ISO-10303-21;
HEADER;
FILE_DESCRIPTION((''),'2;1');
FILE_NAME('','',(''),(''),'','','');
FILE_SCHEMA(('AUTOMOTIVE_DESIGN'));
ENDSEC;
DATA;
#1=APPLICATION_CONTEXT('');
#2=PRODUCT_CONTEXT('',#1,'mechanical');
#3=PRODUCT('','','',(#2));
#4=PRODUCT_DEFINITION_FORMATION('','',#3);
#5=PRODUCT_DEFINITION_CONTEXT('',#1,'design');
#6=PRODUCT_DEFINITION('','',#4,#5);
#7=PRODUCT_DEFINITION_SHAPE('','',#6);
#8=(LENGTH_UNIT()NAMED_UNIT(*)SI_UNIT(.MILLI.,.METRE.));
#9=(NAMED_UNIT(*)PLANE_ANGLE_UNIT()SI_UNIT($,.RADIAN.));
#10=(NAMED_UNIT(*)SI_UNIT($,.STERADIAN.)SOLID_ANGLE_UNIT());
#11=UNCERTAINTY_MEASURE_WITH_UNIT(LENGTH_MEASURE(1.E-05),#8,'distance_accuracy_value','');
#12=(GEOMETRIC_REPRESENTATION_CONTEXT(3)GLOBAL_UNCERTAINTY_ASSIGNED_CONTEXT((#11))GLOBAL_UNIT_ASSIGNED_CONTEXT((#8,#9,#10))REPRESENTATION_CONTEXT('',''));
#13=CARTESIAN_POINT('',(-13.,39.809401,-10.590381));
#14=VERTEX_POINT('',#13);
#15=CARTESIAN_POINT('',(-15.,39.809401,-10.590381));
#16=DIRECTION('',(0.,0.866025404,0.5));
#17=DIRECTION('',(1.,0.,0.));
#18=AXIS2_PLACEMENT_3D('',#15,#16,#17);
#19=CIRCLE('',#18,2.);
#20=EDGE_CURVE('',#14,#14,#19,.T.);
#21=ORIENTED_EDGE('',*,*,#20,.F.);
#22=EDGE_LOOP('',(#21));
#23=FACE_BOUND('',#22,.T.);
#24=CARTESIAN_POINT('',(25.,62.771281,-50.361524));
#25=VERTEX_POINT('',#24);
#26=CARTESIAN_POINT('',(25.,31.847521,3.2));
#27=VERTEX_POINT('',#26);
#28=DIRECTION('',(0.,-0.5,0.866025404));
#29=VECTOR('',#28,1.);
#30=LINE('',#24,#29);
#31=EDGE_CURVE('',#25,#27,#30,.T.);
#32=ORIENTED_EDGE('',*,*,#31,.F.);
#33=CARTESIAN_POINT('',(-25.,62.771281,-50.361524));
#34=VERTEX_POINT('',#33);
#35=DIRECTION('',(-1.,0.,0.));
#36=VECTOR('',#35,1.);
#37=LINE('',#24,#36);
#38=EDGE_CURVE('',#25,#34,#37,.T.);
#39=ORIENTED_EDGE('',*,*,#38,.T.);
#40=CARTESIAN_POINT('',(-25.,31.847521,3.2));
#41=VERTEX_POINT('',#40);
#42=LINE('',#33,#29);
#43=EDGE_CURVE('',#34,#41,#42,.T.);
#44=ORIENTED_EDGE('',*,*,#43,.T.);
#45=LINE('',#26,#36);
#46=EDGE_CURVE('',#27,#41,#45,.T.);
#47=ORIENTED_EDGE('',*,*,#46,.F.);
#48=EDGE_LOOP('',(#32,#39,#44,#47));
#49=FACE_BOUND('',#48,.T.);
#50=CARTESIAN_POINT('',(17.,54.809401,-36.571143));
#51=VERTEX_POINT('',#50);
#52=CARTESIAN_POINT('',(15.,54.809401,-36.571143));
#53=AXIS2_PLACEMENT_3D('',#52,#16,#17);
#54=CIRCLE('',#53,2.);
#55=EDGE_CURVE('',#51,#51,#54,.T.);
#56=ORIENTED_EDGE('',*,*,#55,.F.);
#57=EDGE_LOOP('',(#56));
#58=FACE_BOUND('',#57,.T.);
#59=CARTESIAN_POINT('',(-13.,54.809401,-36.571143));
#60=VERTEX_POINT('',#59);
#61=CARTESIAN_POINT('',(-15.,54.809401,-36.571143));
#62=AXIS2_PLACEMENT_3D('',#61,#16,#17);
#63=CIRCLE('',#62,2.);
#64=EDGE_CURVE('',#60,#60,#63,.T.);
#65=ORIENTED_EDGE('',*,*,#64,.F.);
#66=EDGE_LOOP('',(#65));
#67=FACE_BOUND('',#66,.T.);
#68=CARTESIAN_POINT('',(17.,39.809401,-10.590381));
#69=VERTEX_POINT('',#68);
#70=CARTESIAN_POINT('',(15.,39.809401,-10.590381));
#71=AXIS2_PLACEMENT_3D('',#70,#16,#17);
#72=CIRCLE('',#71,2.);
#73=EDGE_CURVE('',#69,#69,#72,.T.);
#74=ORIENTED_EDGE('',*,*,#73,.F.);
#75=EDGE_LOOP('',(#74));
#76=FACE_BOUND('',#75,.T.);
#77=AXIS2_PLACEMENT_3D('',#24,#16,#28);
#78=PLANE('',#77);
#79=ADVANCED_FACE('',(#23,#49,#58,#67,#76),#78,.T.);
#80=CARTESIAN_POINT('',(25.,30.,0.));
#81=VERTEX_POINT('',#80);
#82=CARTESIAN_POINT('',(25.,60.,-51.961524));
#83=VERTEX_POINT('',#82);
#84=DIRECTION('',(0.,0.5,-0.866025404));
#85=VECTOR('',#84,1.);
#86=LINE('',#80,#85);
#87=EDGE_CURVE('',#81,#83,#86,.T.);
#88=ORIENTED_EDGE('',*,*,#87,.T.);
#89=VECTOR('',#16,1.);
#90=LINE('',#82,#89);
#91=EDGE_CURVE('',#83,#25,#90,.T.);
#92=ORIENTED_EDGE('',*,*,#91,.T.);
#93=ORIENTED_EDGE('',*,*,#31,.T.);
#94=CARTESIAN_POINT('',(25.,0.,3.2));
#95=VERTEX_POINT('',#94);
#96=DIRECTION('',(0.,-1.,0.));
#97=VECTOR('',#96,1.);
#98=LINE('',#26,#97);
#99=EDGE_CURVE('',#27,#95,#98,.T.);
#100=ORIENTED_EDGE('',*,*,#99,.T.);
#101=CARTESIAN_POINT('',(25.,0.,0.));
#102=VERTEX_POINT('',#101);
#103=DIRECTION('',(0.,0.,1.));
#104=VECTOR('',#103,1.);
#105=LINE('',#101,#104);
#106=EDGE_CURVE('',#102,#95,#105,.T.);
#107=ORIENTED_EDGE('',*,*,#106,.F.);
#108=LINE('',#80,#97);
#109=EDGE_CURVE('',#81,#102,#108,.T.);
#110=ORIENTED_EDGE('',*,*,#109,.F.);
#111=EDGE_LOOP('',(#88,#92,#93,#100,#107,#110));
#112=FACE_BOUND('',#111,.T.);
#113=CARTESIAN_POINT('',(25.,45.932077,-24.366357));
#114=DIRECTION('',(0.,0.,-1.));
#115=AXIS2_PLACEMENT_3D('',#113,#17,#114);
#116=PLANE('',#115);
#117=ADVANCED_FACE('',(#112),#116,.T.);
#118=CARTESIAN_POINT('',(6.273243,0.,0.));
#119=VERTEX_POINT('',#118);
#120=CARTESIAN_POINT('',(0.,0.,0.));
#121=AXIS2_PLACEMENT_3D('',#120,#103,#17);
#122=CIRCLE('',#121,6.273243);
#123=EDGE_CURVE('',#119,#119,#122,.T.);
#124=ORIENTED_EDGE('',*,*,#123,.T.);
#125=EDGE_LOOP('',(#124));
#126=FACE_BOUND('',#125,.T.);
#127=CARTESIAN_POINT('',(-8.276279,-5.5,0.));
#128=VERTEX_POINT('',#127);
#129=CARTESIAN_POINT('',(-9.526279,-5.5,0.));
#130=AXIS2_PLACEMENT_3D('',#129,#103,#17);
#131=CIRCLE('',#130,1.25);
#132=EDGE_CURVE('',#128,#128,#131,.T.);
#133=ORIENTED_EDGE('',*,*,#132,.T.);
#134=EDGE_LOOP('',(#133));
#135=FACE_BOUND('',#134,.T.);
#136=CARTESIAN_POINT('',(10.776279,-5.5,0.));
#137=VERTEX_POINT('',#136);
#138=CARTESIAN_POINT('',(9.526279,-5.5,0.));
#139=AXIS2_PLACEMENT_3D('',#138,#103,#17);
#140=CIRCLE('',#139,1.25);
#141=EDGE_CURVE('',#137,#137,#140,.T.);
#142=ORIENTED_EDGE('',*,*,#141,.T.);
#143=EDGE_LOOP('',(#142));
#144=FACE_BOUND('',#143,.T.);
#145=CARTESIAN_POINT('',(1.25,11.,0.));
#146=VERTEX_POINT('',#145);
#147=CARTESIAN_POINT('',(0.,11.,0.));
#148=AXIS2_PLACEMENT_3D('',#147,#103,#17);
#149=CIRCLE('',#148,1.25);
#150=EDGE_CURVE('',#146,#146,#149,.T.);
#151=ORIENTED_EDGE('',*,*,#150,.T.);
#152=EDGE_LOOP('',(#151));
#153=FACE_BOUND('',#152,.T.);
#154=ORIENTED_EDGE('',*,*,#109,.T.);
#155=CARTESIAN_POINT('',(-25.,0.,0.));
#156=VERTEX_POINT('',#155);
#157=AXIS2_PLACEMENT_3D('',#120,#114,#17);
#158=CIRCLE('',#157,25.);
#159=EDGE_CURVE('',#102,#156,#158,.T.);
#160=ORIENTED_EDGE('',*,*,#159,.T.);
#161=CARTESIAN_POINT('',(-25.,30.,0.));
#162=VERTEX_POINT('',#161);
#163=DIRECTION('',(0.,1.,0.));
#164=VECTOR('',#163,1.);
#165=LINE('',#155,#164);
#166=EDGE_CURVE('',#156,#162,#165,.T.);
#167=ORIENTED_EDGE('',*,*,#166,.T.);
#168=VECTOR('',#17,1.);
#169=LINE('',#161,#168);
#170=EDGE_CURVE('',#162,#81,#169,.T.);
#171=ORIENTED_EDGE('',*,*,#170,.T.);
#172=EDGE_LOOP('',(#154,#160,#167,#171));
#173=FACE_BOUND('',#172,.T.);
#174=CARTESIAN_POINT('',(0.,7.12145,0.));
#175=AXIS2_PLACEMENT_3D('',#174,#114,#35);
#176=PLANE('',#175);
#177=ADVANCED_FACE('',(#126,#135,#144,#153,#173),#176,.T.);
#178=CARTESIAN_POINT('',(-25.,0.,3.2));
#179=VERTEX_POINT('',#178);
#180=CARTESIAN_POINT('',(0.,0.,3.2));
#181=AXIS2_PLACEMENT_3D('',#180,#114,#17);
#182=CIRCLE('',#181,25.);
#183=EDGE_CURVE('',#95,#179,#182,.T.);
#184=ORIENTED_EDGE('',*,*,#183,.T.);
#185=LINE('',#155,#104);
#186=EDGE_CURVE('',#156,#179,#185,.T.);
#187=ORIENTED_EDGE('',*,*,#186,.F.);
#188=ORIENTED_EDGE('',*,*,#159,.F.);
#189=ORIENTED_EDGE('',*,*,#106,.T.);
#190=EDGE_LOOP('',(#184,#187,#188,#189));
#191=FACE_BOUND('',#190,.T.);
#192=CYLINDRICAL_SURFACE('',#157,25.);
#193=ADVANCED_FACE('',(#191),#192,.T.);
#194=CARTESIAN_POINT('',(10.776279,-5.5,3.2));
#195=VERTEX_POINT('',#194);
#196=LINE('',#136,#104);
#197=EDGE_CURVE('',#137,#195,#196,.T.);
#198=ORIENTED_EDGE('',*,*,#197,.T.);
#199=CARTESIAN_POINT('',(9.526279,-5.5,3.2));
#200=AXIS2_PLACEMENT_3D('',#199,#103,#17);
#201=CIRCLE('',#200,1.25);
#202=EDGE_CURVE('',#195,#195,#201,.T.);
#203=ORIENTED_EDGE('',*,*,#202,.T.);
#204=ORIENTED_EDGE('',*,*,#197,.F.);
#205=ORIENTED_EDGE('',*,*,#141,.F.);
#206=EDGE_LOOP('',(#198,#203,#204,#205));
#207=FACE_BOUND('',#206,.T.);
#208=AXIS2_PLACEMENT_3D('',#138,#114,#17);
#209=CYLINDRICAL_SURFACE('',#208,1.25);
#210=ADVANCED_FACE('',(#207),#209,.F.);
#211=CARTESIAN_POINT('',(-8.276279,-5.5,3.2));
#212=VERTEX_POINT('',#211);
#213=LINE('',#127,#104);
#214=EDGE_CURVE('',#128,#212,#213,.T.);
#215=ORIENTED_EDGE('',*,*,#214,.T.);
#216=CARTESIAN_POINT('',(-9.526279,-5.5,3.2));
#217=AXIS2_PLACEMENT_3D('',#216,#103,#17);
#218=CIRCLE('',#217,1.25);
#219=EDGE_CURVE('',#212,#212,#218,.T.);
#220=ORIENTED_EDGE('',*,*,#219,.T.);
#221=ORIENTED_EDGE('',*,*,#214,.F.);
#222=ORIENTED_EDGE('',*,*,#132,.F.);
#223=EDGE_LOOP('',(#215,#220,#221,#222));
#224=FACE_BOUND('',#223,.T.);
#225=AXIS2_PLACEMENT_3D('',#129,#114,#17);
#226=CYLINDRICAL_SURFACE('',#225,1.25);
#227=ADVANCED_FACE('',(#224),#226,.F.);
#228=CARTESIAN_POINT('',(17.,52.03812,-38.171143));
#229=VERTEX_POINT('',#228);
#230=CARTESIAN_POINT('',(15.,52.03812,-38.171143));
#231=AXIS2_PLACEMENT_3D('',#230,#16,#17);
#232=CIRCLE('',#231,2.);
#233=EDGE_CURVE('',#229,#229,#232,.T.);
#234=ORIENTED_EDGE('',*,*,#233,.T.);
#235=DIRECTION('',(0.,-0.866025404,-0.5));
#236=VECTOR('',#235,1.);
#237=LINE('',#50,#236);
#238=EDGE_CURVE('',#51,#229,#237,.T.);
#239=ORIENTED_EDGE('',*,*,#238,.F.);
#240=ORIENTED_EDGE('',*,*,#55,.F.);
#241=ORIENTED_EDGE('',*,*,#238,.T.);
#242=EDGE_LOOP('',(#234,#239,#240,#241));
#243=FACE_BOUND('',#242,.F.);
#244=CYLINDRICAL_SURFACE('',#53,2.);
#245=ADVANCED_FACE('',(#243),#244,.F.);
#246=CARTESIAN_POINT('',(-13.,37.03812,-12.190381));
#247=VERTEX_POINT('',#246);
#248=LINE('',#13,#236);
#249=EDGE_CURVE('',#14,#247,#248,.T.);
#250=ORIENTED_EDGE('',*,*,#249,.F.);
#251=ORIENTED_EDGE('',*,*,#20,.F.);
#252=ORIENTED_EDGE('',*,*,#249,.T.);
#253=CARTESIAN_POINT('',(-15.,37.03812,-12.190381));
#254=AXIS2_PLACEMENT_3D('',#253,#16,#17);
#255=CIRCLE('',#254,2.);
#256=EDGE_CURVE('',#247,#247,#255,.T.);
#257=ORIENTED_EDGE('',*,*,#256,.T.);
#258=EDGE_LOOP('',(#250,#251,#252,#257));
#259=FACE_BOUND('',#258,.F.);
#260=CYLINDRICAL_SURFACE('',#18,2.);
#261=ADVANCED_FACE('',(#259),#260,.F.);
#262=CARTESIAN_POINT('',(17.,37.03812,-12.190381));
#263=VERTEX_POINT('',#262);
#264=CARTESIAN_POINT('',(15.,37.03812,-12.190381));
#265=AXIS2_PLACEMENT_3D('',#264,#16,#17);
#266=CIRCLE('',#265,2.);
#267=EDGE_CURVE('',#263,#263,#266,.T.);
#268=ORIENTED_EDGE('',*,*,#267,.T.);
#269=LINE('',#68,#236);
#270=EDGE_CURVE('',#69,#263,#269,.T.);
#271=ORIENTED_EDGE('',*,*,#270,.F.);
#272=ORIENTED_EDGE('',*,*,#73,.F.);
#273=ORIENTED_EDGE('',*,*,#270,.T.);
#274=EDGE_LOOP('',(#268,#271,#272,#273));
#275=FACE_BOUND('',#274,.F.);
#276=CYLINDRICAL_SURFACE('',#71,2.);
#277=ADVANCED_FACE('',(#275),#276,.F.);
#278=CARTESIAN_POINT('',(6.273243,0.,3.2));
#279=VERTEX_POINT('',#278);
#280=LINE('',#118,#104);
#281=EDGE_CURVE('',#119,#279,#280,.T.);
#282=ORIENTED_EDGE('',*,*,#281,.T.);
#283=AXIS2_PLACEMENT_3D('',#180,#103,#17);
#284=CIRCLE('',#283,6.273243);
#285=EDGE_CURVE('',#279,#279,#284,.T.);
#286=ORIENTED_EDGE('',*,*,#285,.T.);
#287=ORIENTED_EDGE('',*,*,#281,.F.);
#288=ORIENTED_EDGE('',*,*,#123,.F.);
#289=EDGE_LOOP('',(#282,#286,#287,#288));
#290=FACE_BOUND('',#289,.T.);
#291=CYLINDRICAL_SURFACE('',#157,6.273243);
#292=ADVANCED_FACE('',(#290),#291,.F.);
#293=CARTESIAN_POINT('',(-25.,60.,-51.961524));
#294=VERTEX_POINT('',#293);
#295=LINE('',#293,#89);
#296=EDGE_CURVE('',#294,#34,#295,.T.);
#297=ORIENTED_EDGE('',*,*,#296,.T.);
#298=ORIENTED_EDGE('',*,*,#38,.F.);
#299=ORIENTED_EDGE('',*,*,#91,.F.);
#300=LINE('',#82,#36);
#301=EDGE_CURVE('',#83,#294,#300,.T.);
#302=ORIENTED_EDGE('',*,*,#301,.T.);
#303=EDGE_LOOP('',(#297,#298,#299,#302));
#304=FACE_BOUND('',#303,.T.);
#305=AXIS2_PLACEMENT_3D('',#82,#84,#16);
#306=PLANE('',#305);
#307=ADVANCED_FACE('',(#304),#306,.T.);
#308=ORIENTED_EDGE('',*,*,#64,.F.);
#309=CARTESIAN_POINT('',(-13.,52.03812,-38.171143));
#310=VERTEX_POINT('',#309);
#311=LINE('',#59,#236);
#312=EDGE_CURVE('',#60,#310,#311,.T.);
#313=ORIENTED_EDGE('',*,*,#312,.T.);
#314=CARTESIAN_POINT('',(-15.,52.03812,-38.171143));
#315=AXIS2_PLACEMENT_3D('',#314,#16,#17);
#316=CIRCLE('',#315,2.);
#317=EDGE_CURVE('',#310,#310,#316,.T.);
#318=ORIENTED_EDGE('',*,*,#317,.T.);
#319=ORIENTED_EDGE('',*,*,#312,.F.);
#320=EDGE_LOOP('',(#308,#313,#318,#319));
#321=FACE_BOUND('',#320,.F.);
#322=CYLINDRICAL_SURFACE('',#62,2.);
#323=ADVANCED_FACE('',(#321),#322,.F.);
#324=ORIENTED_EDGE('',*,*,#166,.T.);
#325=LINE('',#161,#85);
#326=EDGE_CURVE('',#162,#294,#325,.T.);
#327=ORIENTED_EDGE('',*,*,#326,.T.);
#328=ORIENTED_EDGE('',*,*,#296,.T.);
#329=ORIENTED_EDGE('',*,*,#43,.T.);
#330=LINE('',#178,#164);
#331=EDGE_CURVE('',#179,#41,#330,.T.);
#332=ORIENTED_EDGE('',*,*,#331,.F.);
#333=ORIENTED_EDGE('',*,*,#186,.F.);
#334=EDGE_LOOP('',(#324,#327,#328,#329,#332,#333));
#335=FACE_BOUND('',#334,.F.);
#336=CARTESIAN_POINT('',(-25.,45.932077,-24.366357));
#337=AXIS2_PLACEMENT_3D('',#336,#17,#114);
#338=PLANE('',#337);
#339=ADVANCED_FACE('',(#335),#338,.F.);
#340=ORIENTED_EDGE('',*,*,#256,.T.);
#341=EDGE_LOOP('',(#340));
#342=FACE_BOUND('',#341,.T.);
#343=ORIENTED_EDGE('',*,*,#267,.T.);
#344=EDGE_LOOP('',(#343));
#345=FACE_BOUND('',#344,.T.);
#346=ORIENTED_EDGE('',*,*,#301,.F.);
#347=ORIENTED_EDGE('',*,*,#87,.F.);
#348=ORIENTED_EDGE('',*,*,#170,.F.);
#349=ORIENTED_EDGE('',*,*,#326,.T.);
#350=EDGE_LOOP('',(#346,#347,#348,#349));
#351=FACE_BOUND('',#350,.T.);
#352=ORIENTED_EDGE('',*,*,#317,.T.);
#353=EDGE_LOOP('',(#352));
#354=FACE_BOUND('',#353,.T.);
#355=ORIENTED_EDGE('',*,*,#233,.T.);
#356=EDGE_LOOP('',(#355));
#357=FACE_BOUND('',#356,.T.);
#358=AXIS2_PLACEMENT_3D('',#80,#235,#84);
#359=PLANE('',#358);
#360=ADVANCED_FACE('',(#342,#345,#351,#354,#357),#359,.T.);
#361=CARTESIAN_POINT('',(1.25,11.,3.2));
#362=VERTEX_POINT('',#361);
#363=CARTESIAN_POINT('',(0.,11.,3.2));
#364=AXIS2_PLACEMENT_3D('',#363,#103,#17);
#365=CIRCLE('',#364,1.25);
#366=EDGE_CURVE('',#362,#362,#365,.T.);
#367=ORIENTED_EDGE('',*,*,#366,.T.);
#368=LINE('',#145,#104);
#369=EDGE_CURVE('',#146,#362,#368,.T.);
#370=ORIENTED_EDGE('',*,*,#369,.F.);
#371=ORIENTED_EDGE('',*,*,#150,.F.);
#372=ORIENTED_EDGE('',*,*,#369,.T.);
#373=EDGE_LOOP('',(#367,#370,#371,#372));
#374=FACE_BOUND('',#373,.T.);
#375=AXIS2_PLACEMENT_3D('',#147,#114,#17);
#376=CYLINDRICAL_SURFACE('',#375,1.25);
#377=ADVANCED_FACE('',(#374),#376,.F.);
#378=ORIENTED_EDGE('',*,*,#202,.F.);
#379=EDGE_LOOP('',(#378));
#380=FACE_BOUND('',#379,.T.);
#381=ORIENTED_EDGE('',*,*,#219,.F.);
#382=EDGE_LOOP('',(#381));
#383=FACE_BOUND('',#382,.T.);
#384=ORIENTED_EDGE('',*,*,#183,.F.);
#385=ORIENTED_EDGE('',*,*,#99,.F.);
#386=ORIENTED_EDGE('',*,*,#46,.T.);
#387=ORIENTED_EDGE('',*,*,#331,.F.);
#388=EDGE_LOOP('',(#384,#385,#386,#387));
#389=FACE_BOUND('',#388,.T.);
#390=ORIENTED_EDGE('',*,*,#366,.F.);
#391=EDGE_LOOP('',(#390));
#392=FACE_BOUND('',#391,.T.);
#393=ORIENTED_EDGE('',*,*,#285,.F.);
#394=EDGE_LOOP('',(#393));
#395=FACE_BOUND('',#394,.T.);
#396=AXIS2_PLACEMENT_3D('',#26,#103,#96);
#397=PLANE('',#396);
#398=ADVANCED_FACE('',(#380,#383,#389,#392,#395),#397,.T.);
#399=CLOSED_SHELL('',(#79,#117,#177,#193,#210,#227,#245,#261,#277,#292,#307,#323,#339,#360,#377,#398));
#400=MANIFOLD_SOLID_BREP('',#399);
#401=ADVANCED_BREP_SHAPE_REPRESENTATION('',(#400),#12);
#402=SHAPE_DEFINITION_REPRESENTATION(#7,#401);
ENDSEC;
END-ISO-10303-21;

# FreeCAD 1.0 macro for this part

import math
import FreeCAD as App
import Part
import Sketcher
Q = App.Units.Quantity

doc = App.newDocument("Part")
body = doc.addObject("PartDesign::Body", "Body")

# Sketch on XY plane
sketch1 = doc.addObject("Sketcher::SketchObject", "Sketch")
body.addObject(sketch1)
sketch1.AttachmentSupport = (doc.XY_Plane, [""])
sketch1.MapMode = "FlatFace"
sketch1.addGeometry([
    Part.LineSegment(App.Vector(-25, 30, 0), App.Vector(-25, 0, 0)),  # 0
    Part.ArcOfCircle(Part.Circle(App.Vector(0, 0, 0), App.Vector(0, 0, 1), 25), math.radians(180), math.radians(360)),  # 1
    Part.LineSegment(App.Vector(25, 0, 0), App.Vector(25, 30, 0)),  # 2
    Part.LineSegment(App.Vector(25, 30, 0), App.Vector(-25, 30, 0)),  # 3
    Part.Circle(App.Vector(9.5, -5.5, 0), App.Vector(0, 0, 1), 1.2),  # 4
    Part.Circle(App.Vector(-9.5, -5.5, 0), App.Vector(0, 0, 1), 1.2),  # 5
    Part.Circle(App.Vector(0, 0, 0), App.Vector(0, 0, 1), 6.3),  # 6
    Part.Circle(App.Vector(0, 11, 0), App.Vector(0, 0, 1), 1.2),  # 7
], False)
sketch1.addConstraint([
    Sketcher.Constraint("Tangent", 0, 2, 1, 1),
    Sketcher.Constraint("Tangent", 1, 2, 2, 1),
    Sketcher.Constraint("Coincident", 2, 2, 3, 1),
    Sketcher.Constraint("Coincident", 3, 2, 0, 1),
    Sketcher.Constraint("Vertical", 0),
    Sketcher.Constraint("Vertical", 2),
    Sketcher.Constraint("Horizontal", 3),
    Sketcher.Constraint("Coincident", 1, 3, -1, 1),
    Sketcher.Constraint("Coincident", 6, 3, -1, 1),
    Sketcher.Constraint("Equal", 4, 5),
    Sketcher.Constraint("Equal", 5, 7),
    Sketcher.Constraint("Symmetric", 4, 3, 5, 3, -2),
    Sketcher.Constraint("PointOnObject", 7, 3, -2),
    Sketcher.Constraint("Radius", 1, Q("25 mm")),
    Sketcher.Constraint("Diameter", 4, Q("2.5 mm")),
    Sketcher.Constraint("DistanceY", 0, 2, 0, 1, Q("30 mm")),
    Sketcher.Constraint("DistanceY", -1, 1, 7, 3, Q("11 mm")),
    Sketcher.Constraint("DistanceY", 4, 3, -1, 1, Q("5.5 mm")),
    Sketcher.Constraint("Diameter", 6, Q("12.546486 mm")),
    Sketcher.Constraint("DistanceX", -1, 1, 4, 3, Q("9.526279 mm")),
])
pad1 = doc.addObject("PartDesign::Pad", "Pad")
body.addObject(pad1)
pad1.Profile = sketch1
pad1.Length = 3.2

# Sketch on YZ plane
sketch2 = doc.addObject("Sketcher::SketchObject", "Sketch001")
body.addObject(sketch2)
sketch2.AttachmentSupport = (doc.YZ_Plane, [""])
sketch2.MapMode = "FlatFace"
sketch2.AttachmentOffset = App.Placement(App.Vector(0, 0, 25), App.Rotation())
sketch2.addGeometry([
    Part.LineSegment(App.Vector(30, 0, 0), App.Vector(60, -52, 0)),  # 0
    Part.LineSegment(App.Vector(60, -52, 0), App.Vector(62.8, -50.4, 0)),  # 1
    Part.LineSegment(App.Vector(62.8, -50.4, 0), App.Vector(31.8, 3.2, 0)),  # 2
    Part.LineSegment(App.Vector(31.8, 3.2, 0), App.Vector(30, 3.2, 0)),  # 3
    Part.LineSegment(App.Vector(30, 3.2, 0), App.Vector(30, 0, 0)),  # 4
], False)
sketch2.addConstraint([
    Sketcher.Constraint("Coincident", 0, 2, 1, 1),
    Sketcher.Constraint("Coincident", 1, 2, 2, 1),
    Sketcher.Constraint("Coincident", 2, 2, 3, 1),
    Sketcher.Constraint("Coincident", 3, 2, 4, 1),
    Sketcher.Constraint("Coincident", 4, 2, 0, 1),
    Sketcher.Constraint("Horizontal", 3),
    Sketcher.Constraint("Vertical", 4),
    Sketcher.Constraint("PointOnObject", 4, 2, -1),
    Sketcher.Constraint("Perpendicular", 0, 1),
    Sketcher.Constraint("Perpendicular", 1, 2),
    Sketcher.Constraint("Angle", 0, Q("-60 deg")),
    Sketcher.Constraint("Distance", 0, Q("60 mm")),
    Sketcher.Constraint("DistanceY", 4, 2, 4, 1, Q("3.2 mm")),
    Sketcher.Constraint("DistanceX", -1, 1, 0, 2, Q("60 mm")),
    Sketcher.Constraint("Distance", 1, Q("3.2 mm")),
])
pad2 = doc.addObject("PartDesign::Pad", "Pad001")
body.addObject(pad2)
pad2.Profile = sketch2
pad2.Length = 50
pad2.Reversed = True

# Sketch on an angled plane
sketch3 = doc.addObject("Sketcher::SketchObject", "Sketch002")
body.addObject(sketch3)
sketch3.Placement = App.Placement(App.Vector(0, 25.271281, 14.590381), App.Rotation(App.Vector(1, 0, 0), App.Vector(0, 0.5, -0.866025404), App.Vector(0, 0.866025404, 0.5), "ZXY"))
sketch3.addGeometry(Part.Circle(App.Vector(15, 59.1, 0), App.Vector(0, 0, 1), 2), False)
sketch3.addConstraint([
    Sketcher.Constraint("Diameter", 0, Q("4 mm")),
    Sketcher.Constraint("DistanceX", -1, 1, 0, 3, Q("15 mm")),
    Sketcher.Constraint("DistanceY", -1, 1, 0, 3, Q("59.07624 mm")),
])
pocket1 = doc.addObject("PartDesign::Pocket", "Pocket")
body.addObject(pocket1)
pocket1.Profile = sketch3
pocket1.Type = "UpToFirst"

# Sketch on an angled plane
sketch4 = doc.addObject("Sketcher::SketchObject", "Sketch003")
body.addObject(sketch4)
sketch4.Placement = App.Placement(App.Vector(0, 25.271281, 14.590381), App.Rotation(App.Vector(1, 0, 0), App.Vector(0, 0.5, -0.866025404), App.Vector(0, 0.866025404, 0.5), "ZXY"))
sketch4.addGeometry(Part.Circle(App.Vector(15, 29.1, 0), App.Vector(0, 0, 1), 2), False)
sketch4.addConstraint([
    Sketcher.Constraint("Diameter", 0, Q("4 mm")),
    Sketcher.Constraint("DistanceX", -1, 1, 0, 3, Q("15 mm")),
    Sketcher.Constraint("DistanceY", -1, 1, 0, 3, Q("29.07624 mm")),
])
pocket2 = doc.addObject("PartDesign::Pocket", "Pocket001")
body.addObject(pocket2)
pocket2.Profile = sketch4
pocket2.Type = "UpToFirst"

# Sketch on an angled plane
sketch5 = doc.addObject("Sketcher::SketchObject", "Sketch004")
body.addObject(sketch5)
sketch5.Placement = App.Placement(App.Vector(0, 25.271281, 14.590381), App.Rotation(App.Vector(1, 0, 0), App.Vector(0, 0.5, -0.866025404), App.Vector(0, 0.866025404, 0.5), "ZXY"))
sketch5.addGeometry(Part.Circle(App.Vector(-15, 59.1, 0), App.Vector(0, 0, 1), 2), False)
sketch5.addConstraint([
    Sketcher.Constraint("Diameter", 0, Q("4 mm")),
    Sketcher.Constraint("DistanceX", 0, 3, -1, 1, Q("15 mm")),
    Sketcher.Constraint("DistanceY", -1, 1, 0, 3, Q("59.07624 mm")),
])
pocket3 = doc.addObject("PartDesign::Pocket", "Pocket002")
body.addObject(pocket3)
pocket3.Profile = sketch5
pocket3.Type = "UpToFirst"

# Sketch on an angled plane
sketch6 = doc.addObject("Sketcher::SketchObject", "Sketch005")
body.addObject(sketch6)
sketch6.Placement = App.Placement(App.Vector(0, 25.271281, 14.590381), App.Rotation(App.Vector(1, 0, 0), App.Vector(0, 0.5, -0.866025404), App.Vector(0, 0.866025404, 0.5), "ZXY"))
sketch6.addGeometry(Part.Circle(App.Vector(-15, 29.1, 0), App.Vector(0, 0, 1), 2), False)
sketch6.addConstraint([
    Sketcher.Constraint("Diameter", 0, Q("4 mm")),
    Sketcher.Constraint("DistanceX", 0, 3, -1, 1, Q("15 mm")),
    Sketcher.Constraint("DistanceY", -1, 1, 0, 3, Q("29.07624 mm")),
])
pocket4 = doc.addObject("PartDesign::Pocket", "Pocket003")
body.addObject(pocket4)
pocket4.Profile = sketch6
pocket4.Type = "UpToFirst"

doc.recompute()
